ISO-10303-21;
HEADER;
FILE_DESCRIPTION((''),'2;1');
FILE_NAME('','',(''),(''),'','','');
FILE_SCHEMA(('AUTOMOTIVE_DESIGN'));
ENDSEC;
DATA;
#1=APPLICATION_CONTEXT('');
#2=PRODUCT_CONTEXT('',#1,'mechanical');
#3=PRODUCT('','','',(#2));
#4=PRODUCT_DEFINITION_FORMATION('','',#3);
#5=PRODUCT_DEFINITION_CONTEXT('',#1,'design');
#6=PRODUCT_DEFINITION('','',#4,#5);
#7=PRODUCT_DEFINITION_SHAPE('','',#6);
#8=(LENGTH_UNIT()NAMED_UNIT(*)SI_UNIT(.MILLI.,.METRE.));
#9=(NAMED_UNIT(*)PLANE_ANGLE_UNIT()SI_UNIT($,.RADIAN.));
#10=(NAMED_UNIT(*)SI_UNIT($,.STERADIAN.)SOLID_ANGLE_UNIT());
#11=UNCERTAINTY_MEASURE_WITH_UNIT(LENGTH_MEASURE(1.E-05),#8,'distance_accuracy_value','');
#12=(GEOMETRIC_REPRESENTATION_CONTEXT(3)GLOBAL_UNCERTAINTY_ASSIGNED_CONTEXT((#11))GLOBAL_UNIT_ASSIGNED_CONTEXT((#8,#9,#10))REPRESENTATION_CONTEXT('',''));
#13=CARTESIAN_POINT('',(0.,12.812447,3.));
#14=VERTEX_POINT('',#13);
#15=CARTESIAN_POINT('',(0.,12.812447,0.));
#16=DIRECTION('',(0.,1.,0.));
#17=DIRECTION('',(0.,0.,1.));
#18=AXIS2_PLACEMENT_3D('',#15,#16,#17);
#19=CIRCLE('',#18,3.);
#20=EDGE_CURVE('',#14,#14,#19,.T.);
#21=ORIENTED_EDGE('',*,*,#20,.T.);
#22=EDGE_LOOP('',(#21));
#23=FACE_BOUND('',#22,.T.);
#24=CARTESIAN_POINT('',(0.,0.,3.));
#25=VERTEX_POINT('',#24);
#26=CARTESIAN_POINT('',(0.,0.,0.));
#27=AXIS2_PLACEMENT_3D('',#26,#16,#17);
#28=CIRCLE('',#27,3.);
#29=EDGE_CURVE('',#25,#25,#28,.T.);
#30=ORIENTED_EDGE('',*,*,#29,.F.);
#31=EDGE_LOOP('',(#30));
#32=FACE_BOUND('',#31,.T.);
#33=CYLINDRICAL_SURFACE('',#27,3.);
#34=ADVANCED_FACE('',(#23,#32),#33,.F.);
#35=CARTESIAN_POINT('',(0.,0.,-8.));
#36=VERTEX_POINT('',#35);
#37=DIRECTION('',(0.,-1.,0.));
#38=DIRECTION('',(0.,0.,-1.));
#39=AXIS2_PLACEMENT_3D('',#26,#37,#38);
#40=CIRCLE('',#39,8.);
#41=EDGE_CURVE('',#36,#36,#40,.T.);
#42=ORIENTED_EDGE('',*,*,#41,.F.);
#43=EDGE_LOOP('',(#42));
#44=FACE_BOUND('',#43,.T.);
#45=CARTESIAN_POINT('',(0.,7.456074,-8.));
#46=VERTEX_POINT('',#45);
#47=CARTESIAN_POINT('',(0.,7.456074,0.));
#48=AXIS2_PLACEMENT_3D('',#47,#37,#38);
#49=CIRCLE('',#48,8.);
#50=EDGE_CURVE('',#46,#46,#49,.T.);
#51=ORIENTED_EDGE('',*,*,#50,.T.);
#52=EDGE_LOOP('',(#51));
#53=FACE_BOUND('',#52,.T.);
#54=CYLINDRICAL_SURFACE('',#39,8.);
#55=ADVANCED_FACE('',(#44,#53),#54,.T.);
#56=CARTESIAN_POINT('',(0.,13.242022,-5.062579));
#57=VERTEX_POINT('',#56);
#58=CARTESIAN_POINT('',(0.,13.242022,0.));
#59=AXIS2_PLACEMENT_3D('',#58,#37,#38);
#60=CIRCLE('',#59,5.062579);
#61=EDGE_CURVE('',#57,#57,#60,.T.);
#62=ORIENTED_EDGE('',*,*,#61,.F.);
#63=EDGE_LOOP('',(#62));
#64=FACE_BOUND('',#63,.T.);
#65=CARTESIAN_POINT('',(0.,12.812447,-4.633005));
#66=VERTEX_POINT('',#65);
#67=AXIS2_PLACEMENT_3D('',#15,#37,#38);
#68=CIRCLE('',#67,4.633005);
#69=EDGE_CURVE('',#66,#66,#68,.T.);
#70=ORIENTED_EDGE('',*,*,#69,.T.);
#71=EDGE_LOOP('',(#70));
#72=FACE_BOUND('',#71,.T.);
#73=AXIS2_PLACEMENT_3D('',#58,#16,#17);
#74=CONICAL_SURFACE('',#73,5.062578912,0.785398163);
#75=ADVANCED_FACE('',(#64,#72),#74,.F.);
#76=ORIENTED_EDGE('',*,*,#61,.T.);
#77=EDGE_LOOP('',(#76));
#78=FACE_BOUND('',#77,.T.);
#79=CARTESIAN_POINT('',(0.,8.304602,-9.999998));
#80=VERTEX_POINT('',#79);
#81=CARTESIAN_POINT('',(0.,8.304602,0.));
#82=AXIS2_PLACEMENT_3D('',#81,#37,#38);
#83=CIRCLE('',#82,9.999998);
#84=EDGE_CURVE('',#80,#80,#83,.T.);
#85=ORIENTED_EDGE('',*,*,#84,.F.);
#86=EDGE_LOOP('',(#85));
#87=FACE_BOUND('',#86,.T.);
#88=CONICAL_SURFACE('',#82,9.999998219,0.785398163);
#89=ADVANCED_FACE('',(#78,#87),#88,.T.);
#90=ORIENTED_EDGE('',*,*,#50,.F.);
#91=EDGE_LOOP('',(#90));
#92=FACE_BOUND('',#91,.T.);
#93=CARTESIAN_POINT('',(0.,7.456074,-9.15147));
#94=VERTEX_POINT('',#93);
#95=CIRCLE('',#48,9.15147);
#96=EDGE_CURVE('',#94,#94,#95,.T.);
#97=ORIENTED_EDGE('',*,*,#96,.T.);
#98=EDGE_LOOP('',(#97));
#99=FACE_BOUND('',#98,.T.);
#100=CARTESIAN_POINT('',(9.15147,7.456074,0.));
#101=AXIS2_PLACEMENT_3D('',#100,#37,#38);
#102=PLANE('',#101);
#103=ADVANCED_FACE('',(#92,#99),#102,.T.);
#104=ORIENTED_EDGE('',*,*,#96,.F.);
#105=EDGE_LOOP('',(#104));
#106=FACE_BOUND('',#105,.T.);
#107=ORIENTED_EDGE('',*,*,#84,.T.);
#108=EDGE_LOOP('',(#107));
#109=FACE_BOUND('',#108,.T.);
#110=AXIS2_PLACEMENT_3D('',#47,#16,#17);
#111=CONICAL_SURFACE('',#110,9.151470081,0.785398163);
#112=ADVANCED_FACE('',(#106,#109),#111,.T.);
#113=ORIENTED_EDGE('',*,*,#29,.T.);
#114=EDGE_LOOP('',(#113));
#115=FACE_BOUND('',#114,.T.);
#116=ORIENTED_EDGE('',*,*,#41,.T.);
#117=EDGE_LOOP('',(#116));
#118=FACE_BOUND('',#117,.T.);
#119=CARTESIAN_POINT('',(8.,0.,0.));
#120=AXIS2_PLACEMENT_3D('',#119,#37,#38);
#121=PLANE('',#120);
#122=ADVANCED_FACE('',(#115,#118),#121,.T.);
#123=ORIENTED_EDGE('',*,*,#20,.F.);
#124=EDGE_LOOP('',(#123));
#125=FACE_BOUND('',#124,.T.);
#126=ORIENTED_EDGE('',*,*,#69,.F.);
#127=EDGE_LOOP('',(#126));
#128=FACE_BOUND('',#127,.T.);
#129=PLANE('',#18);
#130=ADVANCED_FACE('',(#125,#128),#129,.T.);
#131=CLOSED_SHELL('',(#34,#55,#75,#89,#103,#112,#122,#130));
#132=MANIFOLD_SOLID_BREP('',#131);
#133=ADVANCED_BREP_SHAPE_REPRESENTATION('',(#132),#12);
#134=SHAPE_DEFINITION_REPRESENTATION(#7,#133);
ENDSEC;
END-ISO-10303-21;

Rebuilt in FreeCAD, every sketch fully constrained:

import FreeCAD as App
import Part
import Sketcher
Q = App.Units.Quantity


def add_polygon(sketch, points):
    """Adds a closed chain of lines whose ends are joined by coincident constraints."""
    first, n = sketch.GeometryCount, len(points)
    for a, b in zip(points, points[1:] + points[:1]):
        sketch.addGeometry(Part.LineSegment(App.Vector(*a, 0), App.Vector(*b, 0)), False)
    for i in range(n):
        sketch.addConstraint(Sketcher.Constraint("Coincident", first + i, 2, first + (i + 1) % n, 1))

doc = App.newDocument("Part")
body = doc.addObject("PartDesign::Body", "Body")

sketch1 = body.newObject("Sketcher::SketchObject", "Sketch")
sketch1.AttachmentSupport = (doc.getObject("XY_Plane"), [""])
sketch1.MapMode = "FlatFace"
add_polygon(sketch1, [(8, 7.5), (9.2, 7.5), (10, 8.3), (5.1, 13.2), (4.6, 12.8), (0, 12.8), (0, 0), (8, 0)])
sketch1.addConstraint([
    Sketcher.Constraint("Horizontal", 0),
    Sketcher.Constraint("Horizontal", 4),
    Sketcher.Constraint("Vertical", 5),
    Sketcher.Constraint("Horizontal", 6),
    Sketcher.Constraint("Vertical", 7),
    Sketcher.Constraint("Coincident", 5, 2, -1, 1),
    Sketcher.Constraint("Perpendicular", 1, 2),
    Sketcher.Constraint("Perpendicular", 2, 3),
    Sketcher.Constraint("DistanceX", 6, 1, 6, 2, Q("8 mm")),
    Sketcher.Constraint("Angle", 1, Q("45 deg")),
    Sketcher.Constraint("DistanceX", -1, 1, 1, 2, Q("9.999998 mm")),
    Sketcher.Constraint("Distance", 1, Q("1.2 mm")),
    Sketcher.Constraint("Distance", 3, Q("0.60751 mm")),
    Sketcher.Constraint("DistanceX", 4, 2, 4, 1, Q("4.633005 mm")),
    Sketcher.Constraint("DistanceY", 5, 2, 5, 1, Q("12.812447 mm")),
])
revolution = body.newObject("PartDesign::Revolution", "Revolution")
revolution.Profile = sketch1
revolution.ReferenceAxis = (sketch1, ["V_Axis"])
revolution.Angle = 360

sketch2 = body.newObject("Sketcher::SketchObject", "Sketch001")
sketch2.AttachmentSupport = (doc.getObject("XZ_Plane"), [""])
sketch2.MapMode = "FlatFace"
sketch2.AttachmentOffset = App.Placement(App.Vector(0, 0, -12.812447), App.Rotation())
sketch2.addGeometry(Part.Circle(App.Vector(0, 0, 0), App.Vector(0, 0, 1), 3), False)
sketch2.addConstraint([
    Sketcher.Constraint("Coincident", 0, 3, -1, 1),
    Sketcher.Constraint("Diameter", 0, Q("6 mm")),
])
pocket1 = body.newObject("PartDesign::Pocket", "Pocket")
pocket1.Profile = sketch2
pocket1.Type = "ThroughAll"
pocket1.Reversed = True

doc.recompute()
